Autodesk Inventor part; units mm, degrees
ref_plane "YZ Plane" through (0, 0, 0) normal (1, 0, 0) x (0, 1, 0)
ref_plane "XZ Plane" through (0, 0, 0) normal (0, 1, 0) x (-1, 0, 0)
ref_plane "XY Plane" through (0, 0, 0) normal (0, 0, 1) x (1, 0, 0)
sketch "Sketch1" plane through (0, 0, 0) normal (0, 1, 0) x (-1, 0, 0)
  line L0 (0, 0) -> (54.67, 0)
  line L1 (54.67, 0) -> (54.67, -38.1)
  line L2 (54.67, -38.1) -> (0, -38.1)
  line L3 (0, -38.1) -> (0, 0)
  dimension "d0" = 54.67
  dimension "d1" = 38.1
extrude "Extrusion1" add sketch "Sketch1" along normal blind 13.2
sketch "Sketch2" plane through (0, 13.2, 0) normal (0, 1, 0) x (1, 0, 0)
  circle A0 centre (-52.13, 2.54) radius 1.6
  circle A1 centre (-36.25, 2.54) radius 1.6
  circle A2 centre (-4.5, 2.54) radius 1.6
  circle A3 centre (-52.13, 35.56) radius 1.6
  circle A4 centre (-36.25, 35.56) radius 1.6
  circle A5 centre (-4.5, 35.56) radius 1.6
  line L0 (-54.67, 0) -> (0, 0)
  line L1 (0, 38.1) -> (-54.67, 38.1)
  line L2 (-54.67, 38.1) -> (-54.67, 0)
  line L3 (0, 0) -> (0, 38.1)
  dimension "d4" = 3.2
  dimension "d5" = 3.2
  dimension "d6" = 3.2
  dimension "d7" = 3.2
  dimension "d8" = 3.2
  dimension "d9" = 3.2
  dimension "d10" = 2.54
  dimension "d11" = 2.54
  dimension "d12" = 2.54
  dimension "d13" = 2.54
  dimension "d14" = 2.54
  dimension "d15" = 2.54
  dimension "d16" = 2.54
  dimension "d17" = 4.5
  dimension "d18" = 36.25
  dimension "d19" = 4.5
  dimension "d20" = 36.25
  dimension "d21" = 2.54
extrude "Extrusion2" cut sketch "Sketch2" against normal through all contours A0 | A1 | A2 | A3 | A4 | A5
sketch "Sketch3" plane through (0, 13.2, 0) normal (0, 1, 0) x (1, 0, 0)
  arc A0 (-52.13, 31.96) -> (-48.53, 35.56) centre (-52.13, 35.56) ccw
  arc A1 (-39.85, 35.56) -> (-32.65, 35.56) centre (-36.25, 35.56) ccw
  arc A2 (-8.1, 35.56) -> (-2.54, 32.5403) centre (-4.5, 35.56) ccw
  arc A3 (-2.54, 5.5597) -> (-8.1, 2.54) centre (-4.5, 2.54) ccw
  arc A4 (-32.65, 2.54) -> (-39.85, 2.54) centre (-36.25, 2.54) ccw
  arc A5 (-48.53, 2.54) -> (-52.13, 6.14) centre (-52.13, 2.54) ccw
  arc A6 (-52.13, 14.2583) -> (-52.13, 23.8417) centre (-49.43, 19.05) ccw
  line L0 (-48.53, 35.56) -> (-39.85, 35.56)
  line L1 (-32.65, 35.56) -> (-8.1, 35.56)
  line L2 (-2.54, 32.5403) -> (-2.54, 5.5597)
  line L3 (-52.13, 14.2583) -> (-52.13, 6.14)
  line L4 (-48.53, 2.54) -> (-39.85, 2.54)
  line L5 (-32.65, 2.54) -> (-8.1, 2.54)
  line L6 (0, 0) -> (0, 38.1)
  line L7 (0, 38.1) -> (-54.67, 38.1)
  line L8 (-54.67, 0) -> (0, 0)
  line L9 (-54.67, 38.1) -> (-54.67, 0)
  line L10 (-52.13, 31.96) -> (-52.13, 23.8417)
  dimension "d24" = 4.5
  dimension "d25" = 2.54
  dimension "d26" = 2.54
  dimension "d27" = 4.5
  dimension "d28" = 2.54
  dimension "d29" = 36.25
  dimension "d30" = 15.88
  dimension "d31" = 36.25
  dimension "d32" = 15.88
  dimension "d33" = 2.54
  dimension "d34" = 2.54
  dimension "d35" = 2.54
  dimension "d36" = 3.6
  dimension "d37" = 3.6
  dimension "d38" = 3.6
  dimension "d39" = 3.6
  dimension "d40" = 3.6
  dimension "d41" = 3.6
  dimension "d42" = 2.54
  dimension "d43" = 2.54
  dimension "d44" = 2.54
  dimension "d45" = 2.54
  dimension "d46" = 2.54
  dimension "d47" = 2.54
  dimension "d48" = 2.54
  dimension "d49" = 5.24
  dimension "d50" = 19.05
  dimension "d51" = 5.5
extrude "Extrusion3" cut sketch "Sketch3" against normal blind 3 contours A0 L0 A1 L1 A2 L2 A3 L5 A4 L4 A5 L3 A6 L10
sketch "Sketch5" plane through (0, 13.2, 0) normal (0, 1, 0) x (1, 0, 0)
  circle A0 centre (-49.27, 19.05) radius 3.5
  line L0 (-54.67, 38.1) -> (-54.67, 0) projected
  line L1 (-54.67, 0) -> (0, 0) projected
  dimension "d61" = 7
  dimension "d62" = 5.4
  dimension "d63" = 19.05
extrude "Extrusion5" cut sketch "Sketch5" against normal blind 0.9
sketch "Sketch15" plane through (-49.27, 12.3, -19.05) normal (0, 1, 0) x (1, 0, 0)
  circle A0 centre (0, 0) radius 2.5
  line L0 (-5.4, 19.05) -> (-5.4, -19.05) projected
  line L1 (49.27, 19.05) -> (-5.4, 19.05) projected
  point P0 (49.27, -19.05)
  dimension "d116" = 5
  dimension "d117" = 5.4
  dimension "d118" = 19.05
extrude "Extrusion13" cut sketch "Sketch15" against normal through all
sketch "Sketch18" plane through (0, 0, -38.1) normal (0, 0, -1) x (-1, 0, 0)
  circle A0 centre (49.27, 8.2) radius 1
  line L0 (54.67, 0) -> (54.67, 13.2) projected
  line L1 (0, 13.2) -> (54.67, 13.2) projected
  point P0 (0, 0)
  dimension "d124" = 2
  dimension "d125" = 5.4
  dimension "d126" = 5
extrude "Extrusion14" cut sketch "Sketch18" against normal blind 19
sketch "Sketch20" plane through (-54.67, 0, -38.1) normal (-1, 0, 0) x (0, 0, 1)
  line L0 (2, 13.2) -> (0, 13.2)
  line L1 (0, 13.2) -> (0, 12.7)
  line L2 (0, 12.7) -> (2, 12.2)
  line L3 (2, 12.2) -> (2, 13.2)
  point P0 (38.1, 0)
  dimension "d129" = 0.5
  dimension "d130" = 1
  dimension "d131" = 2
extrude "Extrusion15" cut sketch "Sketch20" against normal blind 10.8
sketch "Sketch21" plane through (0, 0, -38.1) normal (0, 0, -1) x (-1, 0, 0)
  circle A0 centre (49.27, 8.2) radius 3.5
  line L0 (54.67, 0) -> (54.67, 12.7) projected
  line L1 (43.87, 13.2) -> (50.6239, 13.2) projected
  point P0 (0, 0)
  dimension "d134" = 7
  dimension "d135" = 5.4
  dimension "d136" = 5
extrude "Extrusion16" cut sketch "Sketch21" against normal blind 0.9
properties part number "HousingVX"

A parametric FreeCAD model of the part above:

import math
import FreeCAD as App
import Part
import Sketcher
from FreeCAD import Vector

doc = App.newDocument("Part")
body = doc.addObject("PartDesign::Body", "Body")

# Sketch on XZ plane
sketch1 = body.newObject("Sketcher::SketchObject", "Sketch")
sketch1.AttachmentSupport = (doc.getObject("XZ_Plane"), [""])
sketch1.MapMode = "FlatFace"
sketch1.addGeometry(Part.LineSegment(Vector(-55, 0, 0), Vector(0, 0, 0)), False)
sketch1.addGeometry(Part.LineSegment(Vector(0, 0, 0), Vector(0, -38, 0)), False)
sketch1.addGeometry(Part.LineSegment(Vector(0, -38, 0), Vector(-55, -38, 0)), False)
sketch1.addGeometry(Part.LineSegment(Vector(-55, -38, 0), Vector(-55, 0, 0)), False)
sketch1.addConstraint(Sketcher.Constraint("Coincident", 0, 2, 1, 1))
sketch1.addConstraint(Sketcher.Constraint("Coincident", 1, 2, 2, 1))
sketch1.addConstraint(Sketcher.Constraint("Coincident", 2, 2, 3, 1))
sketch1.addConstraint(Sketcher.Constraint("Coincident", 3, 2, 0, 1))
sketch1.addConstraint(Sketcher.Constraint("Horizontal", 0))
sketch1.addConstraint(Sketcher.Constraint("Vertical", 1))
sketch1.addConstraint(Sketcher.Constraint("Horizontal", 2))
sketch1.addConstraint(Sketcher.Constraint("Vertical", 3))
sketch1.addConstraint(Sketcher.Constraint("Coincident", 0, 2, -1, 1))
sketch1.addConstraint(Sketcher.Constraint("DistanceY", 1, 2, 1, 1, 38.1))
sketch1.addConstraint(Sketcher.Constraint("DistanceX", 0, 1, 0, 2, 54.67))
pad1 = body.newObject("PartDesign::Pad", "Pad")
pad1.Profile = sketch1
pad1.Length = 13.2
pad1.Reversed = True

# Sketch on XZ plane
sketch2 = body.newObject("Sketcher::SketchObject", "Sketch001")
sketch2.AttachmentSupport = (doc.getObject("XZ_Plane"), [""])
sketch2.MapMode = "FlatFace"
sketch2.AttachmentOffset = App.Placement(Vector(0, 0, -13.2), App.Rotation())
sketch2.addGeometry(Part.Circle(Vector(-52.1, -2.5, 0), Vector(0, 0, 1), 1.6), False)
sketch2.addGeometry(Part.Circle(Vector(-36.2, -2.5, 0), Vector(0, 0, 1), 1.6), False)
sketch2.addGeometry(Part.Circle(Vector(-4.5, -2.5, 0), Vector(0, 0, 1), 1.6), False)
sketch2.addGeometry(Part.Circle(Vector(-52.1, -35.6, 0), Vector(0, 0, 1), 1.6), False)
sketch2.addGeometry(Part.Circle(Vector(-36.2, -35.6, 0), Vector(0, 0, 1), 1.6), False)
sketch2.addGeometry(Part.Circle(Vector(-4.5, -35.6, 0), Vector(0, 0, 1), 1.6), False)
sketch2.addConstraint(Sketcher.Constraint("Equal", 0, 1))
sketch2.addConstraint(Sketcher.Constraint("Equal", 1, 2))
sketch2.addConstraint(Sketcher.Constraint("Equal", 2, 3))
sketch2.addConstraint(Sketcher.Constraint("Equal", 3, 4))
sketch2.addConstraint(Sketcher.Constraint("Equal", 4, 5))
sketch2.addConstraint(Sketcher.Constraint("Horizontal", 0, 3, 1, 3))
sketch2.addConstraint(Sketcher.Constraint("Horizontal", 1, 3, 2, 3))
sketch2.addConstraint(Sketcher.Constraint("Horizontal", 3, 3, 4, 3))
sketch2.addConstraint(Sketcher.Constraint("Horizontal", 4, 3, 5, 3))
sketch2.addConstraint(Sketcher.Constraint("Vertical", 0, 3, 3, 3))
sketch2.addConstraint(Sketcher.Constraint("Vertical", 1, 3, 4, 3))
sketch2.addConstraint(Sketcher.Constraint("Vertical", 2, 3, 5, 3))
sketch2.addConstraint(Sketcher.Constraint("Diameter", 0, 3.2))
sketch2.addConstraint(Sketcher.Constraint("DistanceX", 2, 3, -1, 1, 4.5))
sketch2.addConstraint(Sketcher.Constraint("DistanceY", 0, 3, -1, 1, 2.54))
sketch2.addConstraint(Sketcher.Constraint("DistanceX", 1, 3, -1, 1, 36.25))
sketch2.addConstraint(Sketcher.Constraint("DistanceX", 0, 3, -1, 1, 52.13))
sketch2.addConstraint(Sketcher.Constraint("DistanceY", 3, 3, -1, 1, 35.56))
pocket1 = body.newObject("PartDesign::Pocket", "Pocket")
pocket1.Profile = sketch2
pocket1.Type = "ThroughAll"
pocket1.Reversed = True

# Sketch on XZ plane
sketch3 = body.newObject("Sketcher::SketchObject", "Sketch002")
sketch3.AttachmentSupport = (doc.getObject("XZ_Plane"), [""])
sketch3.MapMode = "FlatFace"
sketch3.AttachmentOffset = App.Placement(Vector(0, 0, -13.2), App.Rotation())
sketch3.addGeometry(Part.ArcOfCircle(Part.Circle(Vector(-52.1, -35.6, 0), Vector(0, 0, 1), 3.6), math.radians(0), math.radians(90)), False)
sketch3.addGeometry(Part.LineSegment(Vector(-52.1, -32, 0), Vector(-52.1, -23.8, 0)), False)
sketch3.addGeometry(Part.ArcOfCircle(Part.Circle(Vector(-49.4, -19.1, 0), Vector(0, 0, 1), 5.5), math.radians(-119), math.radians(119)), False)
sketch3.addGeometry(Part.LineSegment(Vector(-52.1, -14.3, 0), Vector(-52.1, -6.1, 0)), False)
sketch3.addGeometry(Part.ArcOfCircle(Part.Circle(Vector(-52.1, -2.5, 0), Vector(0, 0, 1), 3.6), math.radians(-90), math.radians(0)), False)
sketch3.addGeometry(Part.LineSegment(Vector(-48.5, -2.5, 0), Vector(-39.9, -2.5, 0)), False)
sketch3.addGeometry(Part.ArcOfCircle(Part.Circle(Vector(-36.2, -2.5, 0), Vector(0, 0, 1), 3.6), math.radians(180), math.radians(360)), False)
sketch3.addGeometry(Part.LineSegment(Vector(-32.6, -2.5, 0), Vector(-8.1, -2.5, 0)), False)
sketch3.addGeometry(Part.ArcOfCircle(Part.Circle(Vector(-4.5, -2.5, 0), Vector(0, 0, 1), 3.6), math.radians(180), math.radians(303)), False)
sketch3.addGeometry(Part.LineSegment(Vector(-2.5, -5.6, 0), Vector(-2.5, -32.5, 0)), False)
sketch3.addGeometry(Part.ArcOfCircle(Part.Circle(Vector(-4.5, -35.6, 0), Vector(0, 0, 1), 3.6), math.radians(57), math.radians(180)), False)
sketch3.addGeometry(Part.LineSegment(Vector(-8.1, -35.6, 0), Vector(-32.6, -35.6, 0)), False)
sketch3.addGeometry(Part.ArcOfCircle(Part.Circle(Vector(-36.2, -35.6, 0), Vector(0, 0, 1), 3.6), math.radians(0), math.radians(180)), False)
sketch3.addGeometry(Part.LineSegment(Vector(-39.9, -35.6, 0), Vector(-48.5, -35.6, 0)), False)
sketch3.addConstraint(Sketcher.Constraint("Coincident", 0, 2, 1, 1))
sketch3.addConstraint(Sketcher.Constraint("Coincident", 1, 2, 2, 1))
sketch3.addConstraint(Sketcher.Constraint("Coincident", 2, 2, 3, 1))
sketch3.addConstraint(Sketcher.Constraint("Coincident", 3, 2, 4, 1))
sketch3.addConstraint(Sketcher.Constraint("Coincident", 4, 2, 5, 1))
sketch3.addConstraint(Sketcher.Constraint("Coincident", 5, 2, 6, 1))
sketch3.addConstraint(Sketcher.Constraint("Coincident", 6, 2, 7, 1))
sketch3.addConstraint(Sketcher.Constraint("Coincident", 7, 2, 8, 1))
sketch3.addConstraint(Sketcher.Constraint("Coincident", 8, 2, 9, 1))
sketch3.addConstraint(Sketcher.Constraint("Coincident", 9, 2, 10, 1))
sketch3.addConstraint(Sketcher.Constraint("Coincident", 10, 2, 11, 1))
sketch3.addConstraint(Sketcher.Constraint("Coincident", 11, 2, 12, 1))
sketch3.addConstraint(Sketcher.Constraint("Coincident", 12, 2, 13, 1))
sketch3.addConstraint(Sketcher.Constraint("Coincident", 13, 2, 0, 1))
sketch3.addConstraint(Sketcher.Constraint("Vertical", 1))
sketch3.addConstraint(Sketcher.Constraint("Vertical", 3))
sketch3.addConstraint(Sketcher.Constraint("Horizontal", 5))
sketch3.addConstraint(Sketcher.Constraint("Horizontal", 7))
sketch3.addConstraint(Sketcher.Constraint("Vertical", 9))
sketch3.addConstraint(Sketcher.Constraint("Horizontal", 11))
sketch3.addConstraint(Sketcher.Constraint("Horizontal", 13))
sketch3.addConstraint(Sketcher.Constraint("Equal", 0, 4))
sketch3.addConstraint(Sketcher.Constraint("Equal", 4, 6))
sketch3.addConstraint(Sketcher.Constraint("Equal", 6, 8))
sketch3.addConstraint(Sketcher.Constraint("Equal", 8, 10))
sketch3.addConstraint(Sketcher.Constraint("Equal", 10, 12))
sketch3.addConstraint(Sketcher.Constraint("Horizontal", 4, 3, 6, 3))
sketch3.addConstraint(Sketcher.Constraint("Horizontal", 6, 3, 8, 3))
sketch3.addConstraint(Sketcher.Constraint("Horizontal", 0, 3, 10, 3))
sketch3.addConstraint(Sketcher.Constraint("Horizontal", 10, 3, 12, 3))
sketch3.addConstraint(Sketcher.Constraint("Horizontal", 8, 3, 4, 2))
sketch3.addConstraint(Sketcher.Constraint("Horizontal", 5, 2, 6, 2))
sketch3.addConstraint(Sketcher.Constraint("Horizontal", 12, 3, 10, 2))
sketch3.addConstraint(Sketcher.Constraint("Horizontal", 11, 2, 12, 2))
sketch3.addConstraint(Sketcher.Constraint("Vertical", 0, 3, 4, 3))
sketch3.addConstraint(Sketcher.Constraint("Vertical", 8, 3, 10, 3))
sketch3.addConstraint(Sketcher.Constraint("Vertical", 6, 3, 12, 3))
sketch3.addConstraint(Sketcher.Constraint("Vertical", 4, 3, 0, 2))
sketch3.addConstraint(Sketcher.Constraint("Vertical", 1, 2, 2, 2))
sketch3.addConstraint(Sketcher.Constraint("Equal", 1, 3))
sketch3.addConstraint(Sketcher.Constraint("Radius", 0, 3.6))
sketch3.addConstraint(Sketcher.Constraint("Radius", 2, 5.5))
sketch3.addConstraint(Sketcher.Constraint("DistanceX", 8, 3, -1, 1, 4.5))
sketch3.addConstraint(Sketcher.Constraint("DistanceY", 2, 3, -1, 1, 19.05))
sketch3.addConstraint(Sketcher.Constraint("DistanceY", 4, 3, -1, 1, 2.54))
sketch3.addConstraint(Sketcher.Constraint("DistanceX", 6, 3, -1, 1, 36.25))
sketch3.addConstraint(Sketcher.Constraint("DistanceX", 8, 2, -1, 1, 2.54))
sketch3.addConstraint(Sketcher.Constraint("DistanceX", 4, 3, 6, 3, 15.88))
sketch3.addConstraint(Sketcher.Constraint("DistanceX", 0, 3, 2, 3, 2.7))
pocket2 = body.newObject("PartDesign::Pocket", "Pocket001")
pocket2.Profile = sketch3
pocket2.Length = 3
pocket2.Reversed = True

# Sketch on XZ plane
sketch4 = body.newObject("Sketcher::SketchObject", "Sketch003")
sketch4.AttachmentSupport = (doc.getObject("XZ_Plane"), [""])
sketch4.MapMode = "FlatFace"
sketch4.AttachmentOffset = App.Placement(Vector(0, 0, -13.2), App.Rotation())
sketch4.addGeometry(Part.Circle(Vector(-49.3, -19.1, 0), Vector(0, 0, 1), 3.5), False)
sketch4.addConstraint(Sketcher.Constraint("Diameter", 0, 7.0))
sketch4.addConstraint(Sketcher.Constraint("DistanceY", 0, 3, -1, 1, 19.05))
sketch4.addConstraint(Sketcher.Constraint("DistanceX", 0, 3, -1, 1, 49.27))
pocket3 = body.newObject("PartDesign::Pocket", "Pocket002")
pocket3.Profile = sketch4
pocket3.Length = 0.9
pocket3.Reversed = True

# Sketch on XZ plane
sketch5 = body.newObject("Sketcher::SketchObject", "Sketch004")
sketch5.AttachmentSupport = (doc.getObject("XZ_Plane"), [""])
sketch5.MapMode = "FlatFace"
sketch5.AttachmentOffset = App.Placement(Vector(0, 0, -12.3), App.Rotation())
sketch5.addGeometry(Part.Circle(Vector(-49.3, -19.1, 0), Vector(0, 0, 1), 2.5), False)
sketch5.addConstraint(Sketcher.Constraint("Diameter", 0, 5.0))
sketch5.addConstraint(Sketcher.Constraint("DistanceY", 0, 3, -1, 1, 19.05))
sketch5.addConstraint(Sketcher.Constraint("DistanceX", 0, 3, -1, 1, 49.27))
pocket4 = body.newObject("PartDesign::Pocket", "Pocket003")
pocket4.Profile = sketch5
pocket4.Type = "ThroughAll"
pocket4.Reversed = True

# Sketch on XY plane
sketch6 = body.newObject("Sketcher::SketchObject", "Sketch005")
sketch6.AttachmentSupport = (doc.getObject("XY_Plane"), [""])
sketch6.MapMode = "FlatFace"
sketch6.AttachmentOffset = App.Placement(Vector(0, 0, -38.1), App.Rotation())
sketch6.addGeometry(Part.Circle(Vector(-49.3, 8.2, 0), Vector(0, 0, 1), 1), False)
sketch6.addConstraint(Sketcher.Constraint("Diameter", 0, 2.0))
sketch6.addConstraint(Sketcher.Constraint("DistanceY", -1, 1, 0, 3, 8.2))
sketch6.addConstraint(Sketcher.Constraint("DistanceX", 0, 3, -1, 1, 49.27))
pocket5 = body.newObject("PartDesign::Pocket", "Pocket004")
pocket5.Profile = sketch6
pocket5.Length = 19
pocket5.Reversed = True

# Sketch on YZ plane
sketch7 = body.newObject("Sketcher::SketchObject", "Sketch006")
sketch7.AttachmentSupport = (doc.getObject("YZ_Plane"), [""])
sketch7.MapMode = "FlatFace"
sketch7.AttachmentOffset = App.Placement(Vector(0, 0, -54.67), App.Rotation())
sketch7.addGeometry(Part.LineSegment(Vector(12.2, -36.1, 0), Vector(13.2, -36.1, 0)), False)
sketch7.addGeometry(Part.LineSegment(Vector(13.2, -36.1, 0), Vector(13.2, -38.1, 0)), False)
sketch7.addGeometry(Part.LineSegment(Vector(13.2, -38.1, 0), Vector(12.7, -38.1, 0)), False)
sketch7.addGeometry(Part.LineSegment(Vector(12.7, -38.1, 0), Vector(12.2, -36.1, 0)), False)
sketch7.addConstraint(Sketcher.Constraint("Coincident", 0, 2, 1, 1))
sketch7.addConstraint(Sketcher.Constraint("Coincident", 1, 2, 2, 1))
sketch7.addConstraint(Sketcher.Constraint("Coincident", 2, 2, 3, 1))
sketch7.addConstraint(Sketcher.Constraint("Coincident", 3, 2, 0, 1))
sketch7.addConstraint(Sketcher.Constraint("Horizontal", 0))
sketch7.addConstraint(Sketcher.Constraint("Vertical", 1))
sketch7.addConstraint(Sketcher.Constraint("Horizontal", 2))
sketch7.addConstraint(Sketcher.Constraint("DistanceX", 0, 1, 0, 2, 1.0))
sketch7.addConstraint(Sketcher.Constraint("DistanceY", 1, 2, 1, 1, 2.0))
sketch7.addConstraint(Sketcher.Constraint("DistanceX", 2, 2, 2, 1, 0.5))
sketch7.addConstraint(Sketcher.Constraint("DistanceX", -1, 1, 0, 2, 13.2))
sketch7.addConstraint(Sketcher.Constraint("DistanceY", 0, 2, -1, 1, 36.1))
pocket6 = body.newObject("PartDesign::Pocket", "Pocket005")
pocket6.Profile = sketch7
pocket6.Length = 10.8
pocket6.Reversed = True

# Sketch on XY plane
sketch8 = body.newObject("Sketcher::SketchObject", "Sketch007")
sketch8.AttachmentSupport = (doc.getObject("XY_Plane"), [""])
sketch8.MapMode = "FlatFace"
sketch8.AttachmentOffset = App.Placement(Vector(0, 0, -38.1), App.Rotation())
sketch8.addGeometry(Part.Circle(Vector(-49.3, 8.2, 0), Vector(0, 0, 1), 3.5), False)
sketch8.addConstraint(Sketcher.Constraint("Diameter", 0, 7.0))
sketch8.addConstraint(Sketcher.Constraint("DistanceY", -1, 1, 0, 3, 8.2))
sketch8.addConstraint(Sketcher.Constraint("DistanceX", 0, 3, -1, 1, 49.27))
pocket7 = body.newObject("PartDesign::Pocket", "Pocket006")
pocket7.Profile = sketch8
pocket7.Length = 0.9
pocket7.Reversed = True

doc.recompute()
